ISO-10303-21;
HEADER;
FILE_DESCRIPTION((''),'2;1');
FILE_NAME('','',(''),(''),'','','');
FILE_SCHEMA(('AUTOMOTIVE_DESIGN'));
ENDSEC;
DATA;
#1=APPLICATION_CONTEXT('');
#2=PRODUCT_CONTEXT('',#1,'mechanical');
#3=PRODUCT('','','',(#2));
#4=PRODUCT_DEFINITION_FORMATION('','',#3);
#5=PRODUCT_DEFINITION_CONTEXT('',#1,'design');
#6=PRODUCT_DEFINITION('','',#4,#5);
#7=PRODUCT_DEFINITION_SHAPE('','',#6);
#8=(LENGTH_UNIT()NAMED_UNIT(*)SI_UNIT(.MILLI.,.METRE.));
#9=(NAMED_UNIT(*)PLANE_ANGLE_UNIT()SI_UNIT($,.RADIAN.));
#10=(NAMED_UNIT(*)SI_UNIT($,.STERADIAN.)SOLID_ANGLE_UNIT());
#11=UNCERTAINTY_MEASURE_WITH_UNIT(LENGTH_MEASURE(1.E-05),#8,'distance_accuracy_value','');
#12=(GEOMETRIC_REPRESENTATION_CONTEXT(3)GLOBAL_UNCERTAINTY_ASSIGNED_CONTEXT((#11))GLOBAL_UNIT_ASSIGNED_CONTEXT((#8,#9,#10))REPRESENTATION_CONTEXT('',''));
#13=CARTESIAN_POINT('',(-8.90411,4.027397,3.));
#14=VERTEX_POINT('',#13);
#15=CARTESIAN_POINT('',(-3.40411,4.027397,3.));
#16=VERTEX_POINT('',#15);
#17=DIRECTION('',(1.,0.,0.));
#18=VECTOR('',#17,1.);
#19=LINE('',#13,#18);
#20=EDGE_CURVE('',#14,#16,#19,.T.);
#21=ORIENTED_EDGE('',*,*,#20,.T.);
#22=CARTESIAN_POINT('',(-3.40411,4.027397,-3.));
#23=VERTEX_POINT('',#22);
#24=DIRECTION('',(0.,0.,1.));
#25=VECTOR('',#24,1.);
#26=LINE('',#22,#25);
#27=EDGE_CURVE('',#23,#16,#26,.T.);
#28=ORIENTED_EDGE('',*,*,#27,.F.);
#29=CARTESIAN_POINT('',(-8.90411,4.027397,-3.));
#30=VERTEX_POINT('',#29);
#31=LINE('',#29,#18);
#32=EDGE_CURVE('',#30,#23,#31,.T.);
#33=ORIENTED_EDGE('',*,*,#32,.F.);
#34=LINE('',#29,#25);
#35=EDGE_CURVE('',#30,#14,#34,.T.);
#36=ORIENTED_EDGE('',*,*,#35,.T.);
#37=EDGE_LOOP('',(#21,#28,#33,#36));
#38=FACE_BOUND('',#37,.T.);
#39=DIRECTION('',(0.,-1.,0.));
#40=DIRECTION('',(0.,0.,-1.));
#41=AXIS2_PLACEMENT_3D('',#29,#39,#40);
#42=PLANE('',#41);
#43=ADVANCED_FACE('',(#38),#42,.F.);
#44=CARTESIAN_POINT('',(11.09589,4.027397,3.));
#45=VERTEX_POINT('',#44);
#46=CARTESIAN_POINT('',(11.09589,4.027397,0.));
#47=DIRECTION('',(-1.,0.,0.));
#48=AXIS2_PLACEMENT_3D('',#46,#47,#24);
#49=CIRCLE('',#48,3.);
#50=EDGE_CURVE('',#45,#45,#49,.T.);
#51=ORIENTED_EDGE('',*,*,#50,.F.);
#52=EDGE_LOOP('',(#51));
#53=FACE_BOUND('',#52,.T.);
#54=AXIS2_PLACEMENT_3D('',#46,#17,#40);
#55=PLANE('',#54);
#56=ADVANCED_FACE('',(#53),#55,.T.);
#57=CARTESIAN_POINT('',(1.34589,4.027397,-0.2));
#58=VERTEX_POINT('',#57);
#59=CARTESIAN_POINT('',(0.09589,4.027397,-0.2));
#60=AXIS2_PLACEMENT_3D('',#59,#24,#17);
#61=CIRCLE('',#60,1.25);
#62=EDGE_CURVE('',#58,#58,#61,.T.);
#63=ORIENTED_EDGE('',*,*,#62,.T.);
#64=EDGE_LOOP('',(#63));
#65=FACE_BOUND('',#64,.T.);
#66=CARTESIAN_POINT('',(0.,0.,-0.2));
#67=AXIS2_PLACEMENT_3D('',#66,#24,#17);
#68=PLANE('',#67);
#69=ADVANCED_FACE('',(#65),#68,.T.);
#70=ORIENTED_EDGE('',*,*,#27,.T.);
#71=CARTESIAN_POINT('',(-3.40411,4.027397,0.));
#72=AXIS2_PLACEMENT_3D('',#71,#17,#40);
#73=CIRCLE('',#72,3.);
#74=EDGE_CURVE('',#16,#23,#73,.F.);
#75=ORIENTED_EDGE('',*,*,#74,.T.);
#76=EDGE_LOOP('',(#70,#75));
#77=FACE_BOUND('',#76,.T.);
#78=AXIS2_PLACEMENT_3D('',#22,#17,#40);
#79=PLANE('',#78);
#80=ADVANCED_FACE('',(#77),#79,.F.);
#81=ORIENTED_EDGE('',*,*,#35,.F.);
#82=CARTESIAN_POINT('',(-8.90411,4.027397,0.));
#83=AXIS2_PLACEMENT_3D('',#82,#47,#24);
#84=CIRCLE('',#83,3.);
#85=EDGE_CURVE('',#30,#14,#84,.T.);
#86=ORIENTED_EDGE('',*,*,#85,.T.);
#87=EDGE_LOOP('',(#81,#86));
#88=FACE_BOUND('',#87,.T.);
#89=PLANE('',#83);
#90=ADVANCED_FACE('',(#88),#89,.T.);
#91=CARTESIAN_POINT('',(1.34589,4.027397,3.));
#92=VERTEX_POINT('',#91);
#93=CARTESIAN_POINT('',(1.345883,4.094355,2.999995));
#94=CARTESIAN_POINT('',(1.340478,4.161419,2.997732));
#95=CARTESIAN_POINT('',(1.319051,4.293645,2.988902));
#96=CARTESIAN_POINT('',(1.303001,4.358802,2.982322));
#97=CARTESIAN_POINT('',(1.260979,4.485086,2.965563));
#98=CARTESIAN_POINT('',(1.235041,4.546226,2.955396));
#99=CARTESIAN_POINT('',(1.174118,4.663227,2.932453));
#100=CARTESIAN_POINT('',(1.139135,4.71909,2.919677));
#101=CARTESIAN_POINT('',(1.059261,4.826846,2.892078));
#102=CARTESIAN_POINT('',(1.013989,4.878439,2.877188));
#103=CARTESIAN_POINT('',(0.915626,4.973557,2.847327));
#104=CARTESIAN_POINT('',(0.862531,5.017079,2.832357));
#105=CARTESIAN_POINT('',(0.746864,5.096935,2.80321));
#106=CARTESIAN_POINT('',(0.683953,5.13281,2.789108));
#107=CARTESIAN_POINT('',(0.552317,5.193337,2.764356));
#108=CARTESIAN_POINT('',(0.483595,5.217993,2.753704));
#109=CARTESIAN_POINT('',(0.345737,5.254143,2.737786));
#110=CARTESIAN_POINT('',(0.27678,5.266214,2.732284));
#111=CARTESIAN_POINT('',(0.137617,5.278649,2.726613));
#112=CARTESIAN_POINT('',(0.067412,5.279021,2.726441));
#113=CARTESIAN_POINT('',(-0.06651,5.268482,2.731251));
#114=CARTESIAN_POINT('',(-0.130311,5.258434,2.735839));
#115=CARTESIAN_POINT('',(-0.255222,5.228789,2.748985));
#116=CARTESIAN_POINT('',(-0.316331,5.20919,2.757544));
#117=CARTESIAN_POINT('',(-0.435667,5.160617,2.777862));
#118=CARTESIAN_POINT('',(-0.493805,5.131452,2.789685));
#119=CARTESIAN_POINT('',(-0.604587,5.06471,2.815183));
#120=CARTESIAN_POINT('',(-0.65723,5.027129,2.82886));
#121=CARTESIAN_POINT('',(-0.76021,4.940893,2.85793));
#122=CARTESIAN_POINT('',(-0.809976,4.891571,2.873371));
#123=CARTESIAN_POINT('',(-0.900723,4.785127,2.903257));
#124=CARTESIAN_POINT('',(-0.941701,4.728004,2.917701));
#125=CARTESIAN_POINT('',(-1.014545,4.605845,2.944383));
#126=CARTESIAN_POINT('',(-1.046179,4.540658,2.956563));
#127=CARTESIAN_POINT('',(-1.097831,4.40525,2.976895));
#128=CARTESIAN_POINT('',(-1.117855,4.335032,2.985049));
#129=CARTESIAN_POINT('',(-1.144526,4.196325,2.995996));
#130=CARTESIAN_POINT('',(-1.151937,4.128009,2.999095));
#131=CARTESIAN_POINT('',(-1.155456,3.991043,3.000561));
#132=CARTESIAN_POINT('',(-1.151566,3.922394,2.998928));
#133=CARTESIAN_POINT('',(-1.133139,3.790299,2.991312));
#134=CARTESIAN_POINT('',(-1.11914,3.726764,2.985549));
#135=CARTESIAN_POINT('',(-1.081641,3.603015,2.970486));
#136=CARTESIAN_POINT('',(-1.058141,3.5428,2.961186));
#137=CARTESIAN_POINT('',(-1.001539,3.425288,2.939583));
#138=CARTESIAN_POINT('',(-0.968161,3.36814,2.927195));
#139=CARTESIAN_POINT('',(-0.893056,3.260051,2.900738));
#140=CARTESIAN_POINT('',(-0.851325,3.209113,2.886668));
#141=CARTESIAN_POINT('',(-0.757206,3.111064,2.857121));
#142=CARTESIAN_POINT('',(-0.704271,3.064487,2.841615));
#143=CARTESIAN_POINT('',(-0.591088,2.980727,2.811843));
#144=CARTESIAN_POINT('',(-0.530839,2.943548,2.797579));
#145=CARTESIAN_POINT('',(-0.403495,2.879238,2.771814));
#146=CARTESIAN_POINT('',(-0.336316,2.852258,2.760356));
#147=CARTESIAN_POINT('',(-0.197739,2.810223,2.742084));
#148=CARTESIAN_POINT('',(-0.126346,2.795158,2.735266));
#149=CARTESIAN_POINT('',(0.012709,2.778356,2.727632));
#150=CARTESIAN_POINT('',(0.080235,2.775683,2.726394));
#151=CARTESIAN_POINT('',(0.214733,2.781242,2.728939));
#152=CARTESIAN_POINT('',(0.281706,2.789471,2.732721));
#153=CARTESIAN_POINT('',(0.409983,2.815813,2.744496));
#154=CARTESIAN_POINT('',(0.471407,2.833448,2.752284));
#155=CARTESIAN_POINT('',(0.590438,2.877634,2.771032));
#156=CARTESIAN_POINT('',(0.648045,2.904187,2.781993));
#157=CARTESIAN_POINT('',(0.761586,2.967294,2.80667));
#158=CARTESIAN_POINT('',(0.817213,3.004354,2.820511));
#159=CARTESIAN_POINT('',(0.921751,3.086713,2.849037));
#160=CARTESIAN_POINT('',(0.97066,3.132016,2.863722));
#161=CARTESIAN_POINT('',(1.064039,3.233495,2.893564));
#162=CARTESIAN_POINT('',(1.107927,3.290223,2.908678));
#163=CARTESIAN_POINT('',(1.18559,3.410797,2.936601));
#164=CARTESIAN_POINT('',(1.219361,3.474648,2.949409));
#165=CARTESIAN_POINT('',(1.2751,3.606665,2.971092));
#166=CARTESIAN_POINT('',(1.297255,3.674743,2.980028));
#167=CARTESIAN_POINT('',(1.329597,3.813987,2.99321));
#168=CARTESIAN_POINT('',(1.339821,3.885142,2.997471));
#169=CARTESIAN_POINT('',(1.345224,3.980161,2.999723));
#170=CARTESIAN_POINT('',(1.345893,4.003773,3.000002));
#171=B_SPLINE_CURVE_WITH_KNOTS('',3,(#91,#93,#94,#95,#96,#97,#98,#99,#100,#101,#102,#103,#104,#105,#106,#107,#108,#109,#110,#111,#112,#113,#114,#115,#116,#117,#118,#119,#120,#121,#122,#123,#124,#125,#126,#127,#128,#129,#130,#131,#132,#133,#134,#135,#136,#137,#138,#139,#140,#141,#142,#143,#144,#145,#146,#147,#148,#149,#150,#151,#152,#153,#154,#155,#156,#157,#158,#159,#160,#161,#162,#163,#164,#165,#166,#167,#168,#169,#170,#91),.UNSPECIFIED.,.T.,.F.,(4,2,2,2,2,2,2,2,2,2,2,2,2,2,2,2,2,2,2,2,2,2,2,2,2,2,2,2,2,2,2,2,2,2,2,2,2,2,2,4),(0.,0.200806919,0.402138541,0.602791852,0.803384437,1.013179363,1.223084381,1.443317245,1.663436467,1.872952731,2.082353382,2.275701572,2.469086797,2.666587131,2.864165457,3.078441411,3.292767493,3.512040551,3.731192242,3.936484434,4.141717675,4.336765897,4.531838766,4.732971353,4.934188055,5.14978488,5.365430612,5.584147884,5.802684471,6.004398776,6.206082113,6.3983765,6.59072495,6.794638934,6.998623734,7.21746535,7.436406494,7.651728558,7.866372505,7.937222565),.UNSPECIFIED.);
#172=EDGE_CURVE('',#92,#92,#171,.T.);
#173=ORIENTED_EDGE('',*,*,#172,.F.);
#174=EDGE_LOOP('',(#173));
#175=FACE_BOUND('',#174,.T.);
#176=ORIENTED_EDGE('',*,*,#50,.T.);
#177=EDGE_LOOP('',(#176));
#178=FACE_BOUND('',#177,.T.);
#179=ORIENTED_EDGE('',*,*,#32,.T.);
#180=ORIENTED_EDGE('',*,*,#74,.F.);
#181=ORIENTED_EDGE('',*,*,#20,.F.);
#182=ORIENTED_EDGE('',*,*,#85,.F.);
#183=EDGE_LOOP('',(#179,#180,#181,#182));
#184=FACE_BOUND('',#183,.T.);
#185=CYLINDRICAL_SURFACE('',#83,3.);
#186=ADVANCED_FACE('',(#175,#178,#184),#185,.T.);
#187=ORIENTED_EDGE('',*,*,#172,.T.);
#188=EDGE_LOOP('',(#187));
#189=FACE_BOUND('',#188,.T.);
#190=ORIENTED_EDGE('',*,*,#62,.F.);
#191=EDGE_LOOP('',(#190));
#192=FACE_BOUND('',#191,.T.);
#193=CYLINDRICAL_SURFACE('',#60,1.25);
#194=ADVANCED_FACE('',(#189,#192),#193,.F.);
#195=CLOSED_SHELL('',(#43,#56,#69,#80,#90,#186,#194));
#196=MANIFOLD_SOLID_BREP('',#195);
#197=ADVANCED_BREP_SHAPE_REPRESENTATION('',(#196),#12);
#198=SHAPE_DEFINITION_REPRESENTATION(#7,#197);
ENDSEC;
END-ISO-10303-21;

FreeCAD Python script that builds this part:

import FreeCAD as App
import Part
import Sketcher
Q = App.Units.Quantity

doc = App.newDocument("Part")
body = doc.addObject("PartDesign::Body", "Body")

sketch1 = body.newObject("Sketcher::SketchObject", "Sketch")
sketch1.AttachmentSupport = (doc.getObject("XY_Plane"), [""])
sketch1.MapMode = "FlatFace"
sketch1.addGeometry(Part.LineSegment(App.Vector(-8.90411, 4.027397, 0), App.Vector(-8.90411, 1.027397, 0)), False)
sketch1.addGeometry(Part.LineSegment(App.Vector(-8.90411, 1.027397, 0), App.Vector(11.09589, 1.027397, 0)), False)
sketch1.addGeometry(Part.LineSegment(App.Vector(11.09589, 1.027397, 0), App.Vector(11.09589, 4.027397, 0)), False)
sketch1.addGeometry(Part.LineSegment(App.Vector(11.09589, 4.027397, 0), App.Vector(-8.90411, 4.027397, 0)), False)
sketch1.addGeometry(Part.LineSegment(App.Vector(-8.90411, 4.027397, 0), App.Vector(11.09589, 4.027397, 0)), True)
sketch1.addConstraint(Sketcher.Constraint("Coincident", 0, 2, 1, 1))
sketch1.addConstraint(Sketcher.Constraint("Coincident", 1, 2, 2, 1))
sketch1.addConstraint(Sketcher.Constraint("Coincident", 2, 2, 3, 1))
sketch1.addConstraint(Sketcher.Constraint("Coincident", 3, 2, 0, 1))
sketch1.addConstraint(Sketcher.Constraint("Vertical", 0))
sketch1.addConstraint(Sketcher.Constraint("Horizontal", 1))
sketch1.addConstraint(Sketcher.Constraint("Vertical", 2))
sketch1.addConstraint(Sketcher.Constraint("Horizontal", 3))
sketch1.addConstraint(Sketcher.Constraint("Horizontal", 4))
sketch1.addConstraint(Sketcher.Constraint("Coincident", 4, 1, 3, 2))
sketch1.addConstraint(Sketcher.Constraint("Vertical", 1, 2, 4, 2))
sketch1.addConstraint(Sketcher.Constraint("DistanceX", 1, 1, 1, 2, Q("20 mm")))
sketch1.addConstraint(Sketcher.Constraint("DistanceY", 0, 2, 0, 1, Q("3 mm")))
sketch1.addConstraint(Sketcher.Constraint("DistanceX", 0, 2, -1, 1, Q("8.90411 mm")))
sketch1.addConstraint(Sketcher.Constraint("DistanceY", -1, 1, 0, 2, Q("1.027397 mm")))
revolution = body.newObject("PartDesign::Revolution", "Revolution")
revolution.Profile = sketch1
revolution.ReferenceAxis = (sketch1, ["Axis0"])
revolution.Angle = 360

sketch2 = body.newObject("Sketcher::SketchObject", "Sketch001")
sketch2.AttachmentSupport = (doc.getObject("XY_Plane"), [""])
sketch2.MapMode = "FlatFace"
sketch2.addGeometry(Part.LineSegment(App.Vector(-8.90411, 7.027397, 0), App.Vector(-8.90411, 4.027397, 0)), False)
sketch2.addGeometry(Part.LineSegment(App.Vector(-8.90411, 4.027397, 0), App.Vector(-3.40411, 4.027397, 0)), False)
sketch2.addGeometry(Part.LineSegment(App.Vector(-3.40411, 4.027397, 0), App.Vector(-3.40411, 7.027397, 0)), False)
sketch2.addGeometry(Part.LineSegment(App.Vector(-3.40411, 7.027397, 0), App.Vector(-8.90411, 7.027397, 0)), False)
sketch2.addConstraint(Sketcher.Constraint("Coincident", 0, 2, 1, 1))
sketch2.addConstraint(Sketcher.Constraint("Coincident", 1, 2, 2, 1))
sketch2.addConstraint(Sketcher.Constraint("Coincident", 2, 2, 3, 1))
sketch2.addConstraint(Sketcher.Constraint("Coincident", 3, 2, 0, 1))
sketch2.addConstraint(Sketcher.Constraint("Vertical", 0))
sketch2.addConstraint(Sketcher.Constraint("Horizontal", 1))
sketch2.addConstraint(Sketcher.Constraint("Vertical", 2))
sketch2.addConstraint(Sketcher.Constraint("Horizontal", 3))
sketch2.addConstraint(Sketcher.Constraint("DistanceY", 0, 2, 0, 1, Q("3 mm")))
sketch2.addConstraint(Sketcher.Constraint("DistanceX", 1, 1, 1, 2, Q("5.5 mm")))
sketch2.addConstraint(Sketcher.Constraint("DistanceX", 0, 2, -1, 1, Q("8.90411 mm")))
sketch2.addConstraint(Sketcher.Constraint("DistanceY", -1, 1, 0, 2, Q("4.027397 mm")))
pocket1 = body.newObject("PartDesign::Pocket", "Pocket")
pocket1.Profile = sketch2
pocket1.Type = "ThroughAll"
pocket1.Midplane = True

sketch3 = body.newObject("Sketcher::SketchObject", "Sketch002")
sketch3.AttachmentSupport = (doc.getObject("XY_Plane"), [""])
sketch3.MapMode = "FlatFace"
sketch3.AttachmentOffset = App.Placement(App.Vector(0, 0, 3), App.Rotation())
sketch3.addGeometry(Part.Circle(App.Vector(0.09589, 4.027397, 0), App.Vector(0, 0, 1), 1.25), False)
sketch3.addConstraint(Sketcher.Constraint("Diameter", 0, Q("2.5 mm")))
sketch3.addConstraint(Sketcher.Constraint("DistanceX", -1, 1, 0, 3, Q("0.09589 mm")))
sketch3.addConstraint(Sketcher.Constraint("DistanceY", -1, 1, 0, 3, Q("4.027397 mm")))
pocket2 = body.newObject("PartDesign::Pocket", "Pocket001")
pocket2.Profile = sketch3
pocket2.Length = 3.2

doc.recompute()
